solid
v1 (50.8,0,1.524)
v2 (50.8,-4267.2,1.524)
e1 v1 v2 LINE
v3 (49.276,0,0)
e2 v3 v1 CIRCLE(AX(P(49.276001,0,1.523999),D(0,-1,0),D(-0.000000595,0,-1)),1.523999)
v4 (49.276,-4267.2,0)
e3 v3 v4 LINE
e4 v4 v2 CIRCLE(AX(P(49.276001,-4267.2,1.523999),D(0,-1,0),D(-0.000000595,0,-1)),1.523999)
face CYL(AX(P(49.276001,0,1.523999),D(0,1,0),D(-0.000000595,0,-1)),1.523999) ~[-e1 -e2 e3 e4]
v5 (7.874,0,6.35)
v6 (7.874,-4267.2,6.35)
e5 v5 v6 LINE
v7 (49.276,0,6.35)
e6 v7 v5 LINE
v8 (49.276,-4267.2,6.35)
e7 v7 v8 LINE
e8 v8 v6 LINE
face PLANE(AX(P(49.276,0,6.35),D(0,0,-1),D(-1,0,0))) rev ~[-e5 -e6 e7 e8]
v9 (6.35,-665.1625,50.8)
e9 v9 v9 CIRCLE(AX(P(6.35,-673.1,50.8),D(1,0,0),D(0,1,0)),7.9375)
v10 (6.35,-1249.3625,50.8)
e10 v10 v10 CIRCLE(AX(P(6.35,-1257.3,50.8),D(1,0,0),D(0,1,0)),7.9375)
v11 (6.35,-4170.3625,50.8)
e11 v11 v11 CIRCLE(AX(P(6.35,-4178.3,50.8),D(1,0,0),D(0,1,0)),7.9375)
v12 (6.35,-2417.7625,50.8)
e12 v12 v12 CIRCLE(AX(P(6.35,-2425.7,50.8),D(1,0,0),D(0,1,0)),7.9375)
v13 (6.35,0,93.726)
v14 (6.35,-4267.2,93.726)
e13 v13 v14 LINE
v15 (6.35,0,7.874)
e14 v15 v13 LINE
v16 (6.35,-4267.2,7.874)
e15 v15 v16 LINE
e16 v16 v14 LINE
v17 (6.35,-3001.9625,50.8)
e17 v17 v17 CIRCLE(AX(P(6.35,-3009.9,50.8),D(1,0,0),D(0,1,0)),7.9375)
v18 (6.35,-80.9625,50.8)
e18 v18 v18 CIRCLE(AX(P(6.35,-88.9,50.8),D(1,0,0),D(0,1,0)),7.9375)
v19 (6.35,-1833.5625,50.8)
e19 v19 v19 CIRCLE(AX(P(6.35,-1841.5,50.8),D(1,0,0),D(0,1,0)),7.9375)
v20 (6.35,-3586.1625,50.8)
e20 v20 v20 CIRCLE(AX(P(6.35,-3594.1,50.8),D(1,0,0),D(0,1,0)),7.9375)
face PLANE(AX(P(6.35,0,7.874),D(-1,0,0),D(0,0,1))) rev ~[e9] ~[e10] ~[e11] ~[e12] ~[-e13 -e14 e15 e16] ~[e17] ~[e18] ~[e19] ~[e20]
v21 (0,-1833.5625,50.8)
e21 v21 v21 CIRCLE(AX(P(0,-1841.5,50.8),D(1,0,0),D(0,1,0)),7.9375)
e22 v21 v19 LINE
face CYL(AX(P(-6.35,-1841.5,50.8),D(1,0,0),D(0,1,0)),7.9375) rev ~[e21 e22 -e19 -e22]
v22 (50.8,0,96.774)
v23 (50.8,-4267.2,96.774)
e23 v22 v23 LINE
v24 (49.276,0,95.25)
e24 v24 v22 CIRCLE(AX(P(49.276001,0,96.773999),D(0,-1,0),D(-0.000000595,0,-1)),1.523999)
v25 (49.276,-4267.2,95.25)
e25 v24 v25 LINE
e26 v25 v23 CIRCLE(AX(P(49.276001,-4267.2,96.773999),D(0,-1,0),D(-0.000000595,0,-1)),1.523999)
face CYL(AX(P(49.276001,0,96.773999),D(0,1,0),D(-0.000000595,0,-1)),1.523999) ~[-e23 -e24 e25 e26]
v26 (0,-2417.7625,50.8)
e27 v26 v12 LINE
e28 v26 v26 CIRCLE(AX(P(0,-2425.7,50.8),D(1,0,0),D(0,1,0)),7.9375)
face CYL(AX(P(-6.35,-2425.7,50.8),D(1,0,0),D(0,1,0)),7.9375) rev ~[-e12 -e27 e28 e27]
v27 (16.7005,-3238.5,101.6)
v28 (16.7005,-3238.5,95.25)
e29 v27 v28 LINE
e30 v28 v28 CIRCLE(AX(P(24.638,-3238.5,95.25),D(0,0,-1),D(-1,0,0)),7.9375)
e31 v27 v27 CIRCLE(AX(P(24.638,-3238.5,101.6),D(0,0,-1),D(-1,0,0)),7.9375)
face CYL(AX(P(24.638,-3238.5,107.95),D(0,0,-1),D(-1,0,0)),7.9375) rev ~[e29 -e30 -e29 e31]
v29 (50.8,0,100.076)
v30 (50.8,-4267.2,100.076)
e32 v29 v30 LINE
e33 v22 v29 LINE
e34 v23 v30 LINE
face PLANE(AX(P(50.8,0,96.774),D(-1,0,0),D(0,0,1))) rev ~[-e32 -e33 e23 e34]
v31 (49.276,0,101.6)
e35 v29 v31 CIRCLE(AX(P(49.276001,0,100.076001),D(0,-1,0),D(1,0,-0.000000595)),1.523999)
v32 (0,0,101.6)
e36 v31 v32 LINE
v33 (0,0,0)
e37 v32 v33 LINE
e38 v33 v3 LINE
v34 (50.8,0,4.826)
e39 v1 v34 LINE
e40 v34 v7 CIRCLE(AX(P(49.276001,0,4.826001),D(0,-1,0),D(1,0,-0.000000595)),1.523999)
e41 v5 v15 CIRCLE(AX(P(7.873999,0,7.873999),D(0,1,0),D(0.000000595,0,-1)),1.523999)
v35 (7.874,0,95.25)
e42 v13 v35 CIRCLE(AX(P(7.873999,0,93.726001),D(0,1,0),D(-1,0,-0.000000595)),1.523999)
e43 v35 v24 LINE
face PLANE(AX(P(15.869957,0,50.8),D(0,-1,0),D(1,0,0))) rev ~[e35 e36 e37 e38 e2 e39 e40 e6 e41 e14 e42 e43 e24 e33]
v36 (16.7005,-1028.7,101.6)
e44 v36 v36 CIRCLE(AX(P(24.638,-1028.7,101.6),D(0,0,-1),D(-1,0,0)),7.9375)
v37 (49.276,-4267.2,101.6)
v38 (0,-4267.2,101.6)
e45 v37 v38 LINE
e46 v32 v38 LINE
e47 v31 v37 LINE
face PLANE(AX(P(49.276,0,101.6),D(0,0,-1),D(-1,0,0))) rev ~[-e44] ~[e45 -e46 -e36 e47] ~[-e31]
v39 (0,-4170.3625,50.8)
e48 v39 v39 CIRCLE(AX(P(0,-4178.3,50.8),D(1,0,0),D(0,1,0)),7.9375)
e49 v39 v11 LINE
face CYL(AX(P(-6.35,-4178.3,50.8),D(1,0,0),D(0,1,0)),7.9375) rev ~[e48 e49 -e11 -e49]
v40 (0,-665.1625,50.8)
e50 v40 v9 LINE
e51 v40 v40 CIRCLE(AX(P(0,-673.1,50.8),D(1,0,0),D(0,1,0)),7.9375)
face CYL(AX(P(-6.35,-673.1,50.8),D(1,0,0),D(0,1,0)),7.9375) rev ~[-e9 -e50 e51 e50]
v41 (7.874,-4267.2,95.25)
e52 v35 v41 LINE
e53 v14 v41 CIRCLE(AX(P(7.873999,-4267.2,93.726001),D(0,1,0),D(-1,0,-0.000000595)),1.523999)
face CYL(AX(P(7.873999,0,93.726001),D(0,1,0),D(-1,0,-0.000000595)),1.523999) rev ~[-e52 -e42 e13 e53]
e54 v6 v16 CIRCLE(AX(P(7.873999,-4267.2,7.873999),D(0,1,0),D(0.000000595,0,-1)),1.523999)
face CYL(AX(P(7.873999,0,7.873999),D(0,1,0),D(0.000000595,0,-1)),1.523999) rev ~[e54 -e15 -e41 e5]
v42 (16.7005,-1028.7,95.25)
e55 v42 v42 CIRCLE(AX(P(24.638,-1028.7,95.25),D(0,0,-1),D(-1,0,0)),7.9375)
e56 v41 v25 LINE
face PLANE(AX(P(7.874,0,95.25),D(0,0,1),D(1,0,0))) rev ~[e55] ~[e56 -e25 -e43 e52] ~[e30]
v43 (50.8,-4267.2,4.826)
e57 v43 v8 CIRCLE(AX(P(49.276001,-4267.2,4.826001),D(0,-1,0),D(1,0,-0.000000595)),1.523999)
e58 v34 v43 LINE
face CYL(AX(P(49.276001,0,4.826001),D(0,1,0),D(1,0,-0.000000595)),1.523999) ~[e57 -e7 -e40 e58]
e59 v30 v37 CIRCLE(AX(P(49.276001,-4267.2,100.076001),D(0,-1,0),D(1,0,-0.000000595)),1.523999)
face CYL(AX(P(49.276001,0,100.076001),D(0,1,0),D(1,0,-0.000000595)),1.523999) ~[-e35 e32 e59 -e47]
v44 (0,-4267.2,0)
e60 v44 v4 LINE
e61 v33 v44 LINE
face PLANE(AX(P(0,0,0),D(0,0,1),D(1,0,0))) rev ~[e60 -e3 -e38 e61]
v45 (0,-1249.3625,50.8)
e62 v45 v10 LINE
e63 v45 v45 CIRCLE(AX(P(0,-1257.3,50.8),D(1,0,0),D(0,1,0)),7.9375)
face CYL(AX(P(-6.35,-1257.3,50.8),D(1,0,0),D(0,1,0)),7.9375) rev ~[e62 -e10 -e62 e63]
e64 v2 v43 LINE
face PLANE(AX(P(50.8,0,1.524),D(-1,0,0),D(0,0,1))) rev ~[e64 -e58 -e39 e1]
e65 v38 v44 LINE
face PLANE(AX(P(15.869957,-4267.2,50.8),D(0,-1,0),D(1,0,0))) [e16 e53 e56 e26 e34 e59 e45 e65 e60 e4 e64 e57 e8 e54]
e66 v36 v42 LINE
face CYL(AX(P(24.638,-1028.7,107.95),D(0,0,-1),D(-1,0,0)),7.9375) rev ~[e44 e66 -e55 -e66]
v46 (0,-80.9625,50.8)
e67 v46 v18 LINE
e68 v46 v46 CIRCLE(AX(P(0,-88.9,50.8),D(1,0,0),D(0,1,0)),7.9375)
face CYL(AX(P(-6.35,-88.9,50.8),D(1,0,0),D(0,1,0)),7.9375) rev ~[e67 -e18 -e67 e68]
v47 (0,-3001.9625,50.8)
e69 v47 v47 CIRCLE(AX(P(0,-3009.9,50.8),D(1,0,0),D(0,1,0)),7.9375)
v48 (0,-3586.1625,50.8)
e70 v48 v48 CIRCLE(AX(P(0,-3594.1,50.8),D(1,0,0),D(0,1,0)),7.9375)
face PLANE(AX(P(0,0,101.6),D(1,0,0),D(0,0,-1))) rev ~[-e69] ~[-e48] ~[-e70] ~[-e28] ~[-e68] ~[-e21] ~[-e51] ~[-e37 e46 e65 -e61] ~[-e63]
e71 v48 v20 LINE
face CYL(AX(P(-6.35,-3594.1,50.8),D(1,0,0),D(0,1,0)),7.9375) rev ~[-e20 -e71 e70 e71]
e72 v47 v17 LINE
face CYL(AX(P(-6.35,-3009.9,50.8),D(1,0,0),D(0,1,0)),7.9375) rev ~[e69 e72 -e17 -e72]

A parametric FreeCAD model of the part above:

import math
import FreeCAD as App
import Part
import Sketcher

V = App.Vector
Q = App.Units.Quantity

doc = App.newDocument("Part")
body = doc.addObject("PartDesign::Body", "Body")

# Sketch on XZ plane
sketch1 = body.newObject("Sketcher::SketchObject", "Sketch")
sketch1.AttachmentSupport = (doc.getObject("XZ_Plane"), [""])
sketch1.MapMode = "FlatFace"
sketch1.addGeometry(Part.LineSegment(V(0, 101.6, 0), V(0, 0, 0)), False)
sketch1.addGeometry(Part.LineSegment(V(0, 0, 0), V(49.3, 0, 0)), False)
sketch1.addGeometry(Part.ArcOfCircle(Part.Circle(V(49.3, 1.5, 0), V(0, 0, 1), 1.5), math.radians(-90), math.radians(0)), False)
sketch1.addGeometry(Part.LineSegment(V(50.8, 1.5, 0), V(50.8, 4.8, 0)), False)
sketch1.addGeometry(Part.ArcOfCircle(Part.Circle(V(49.3, 4.8, 0), V(0, 0, 1), 1.5), math.radians(0), math.radians(90)), False)
sketch1.addGeometry(Part.LineSegment(V(49.3, 6.3, 0), V(7.9, 6.3, 0)), False)
sketch1.addGeometry(Part.ArcOfCircle(Part.Circle(V(7.9, 7.9, 0), V(0, 0, 1), 1.5), math.radians(180), math.radians(270)), False)
sketch1.addGeometry(Part.LineSegment(V(6.3, 7.9, 0), V(6.3, 93.7, 0)), False)
sketch1.addGeometry(Part.ArcOfCircle(Part.Circle(V(7.9, 93.7, 0), V(0, 0, 1), 1.5), math.radians(90), math.radians(180)), False)
sketch1.addGeometry(Part.LineSegment(V(7.9, 95.2, 0), V(49.3, 95.2, 0)), False)
sketch1.addGeometry(Part.ArcOfCircle(Part.Circle(V(49.3, 96.8, 0), V(0, 0, 1), 1.5), math.radians(-90), math.radians(0)), False)
sketch1.addGeometry(Part.LineSegment(V(50.8, 96.8, 0), V(50.8, 100.1, 0)), False)
sketch1.addGeometry(Part.ArcOfCircle(Part.Circle(V(49.3, 100.1, 0), V(0, 0, 1), 1.5), math.radians(0), math.radians(90)), False)
sketch1.addGeometry(Part.LineSegment(V(49.3, 101.6, 0), V(0, 101.6, 0)), False)
sketch1.addConstraint(Sketcher.Constraint("Coincident", 0, 2, 1, 1))
sketch1.addConstraint(Sketcher.Constraint("Tangent", 1, 2, 2, 1))
sketch1.addConstraint(Sketcher.Constraint("Tangent", 2, 2, 3, 1))
sketch1.addConstraint(Sketcher.Constraint("Tangent", 3, 2, 4, 1))
sketch1.addConstraint(Sketcher.Constraint("Tangent", 4, 2, 5, 1))
sketch1.addConstraint(Sketcher.Constraint("Tangent", 5, 2, 6, 2))
sketch1.addConstraint(Sketcher.Constraint("Tangent", 6, 1, 7, 1))
sketch1.addConstraint(Sketcher.Constraint("Tangent", 7, 2, 8, 2))
sketch1.addConstraint(Sketcher.Constraint("Tangent", 8, 1, 9, 1))
sketch1.addConstraint(Sketcher.Constraint("Tangent", 9, 2, 10, 1))
sketch1.addConstraint(Sketcher.Constraint("Tangent", 10, 2, 11, 1))
sketch1.addConstraint(Sketcher.Constraint("Tangent", 11, 2, 12, 1))
sketch1.addConstraint(Sketcher.Constraint("Tangent", 12, 2, 13, 1))
sketch1.addConstraint(Sketcher.Constraint("Coincident", 13, 2, 0, 1))
sketch1.addConstraint(Sketcher.Constraint("Vertical", 0))
sketch1.addConstraint(Sketcher.Constraint("Horizontal", 1))
sketch1.addConstraint(Sketcher.Constraint("Vertical", 3))
sketch1.addConstraint(Sketcher.Constraint("Horizontal", 5))
sketch1.addConstraint(Sketcher.Constraint("Vertical", 7))
sketch1.addConstraint(Sketcher.Constraint("Horizontal", 9))
sketch1.addConstraint(Sketcher.Constraint("Vertical", 11))
sketch1.addConstraint(Sketcher.Constraint("Horizontal", 13))
sketch1.addConstraint(Sketcher.Constraint("Coincident", 0, 2, -1, 1))
sketch1.addConstraint(Sketcher.Constraint("Equal", 2, 4))
sketch1.addConstraint(Sketcher.Constraint("Equal", 4, 6))
sketch1.addConstraint(Sketcher.Constraint("Equal", 6, 8))
sketch1.addConstraint(Sketcher.Constraint("Equal", 8, 10))
sketch1.addConstraint(Sketcher.Constraint("Equal", 10, 12))
sketch1.addConstraint(Sketcher.Constraint("Vertical", 4, 3, 10, 3))
sketch1.addConstraint(Sketcher.Constraint("Equal", 3, 11))
sketch1.addConstraint(Sketcher.Constraint("DistanceY", 0, 2, 0, 1, Q("4 in")))
sketch1.addConstraint(Sketcher.Constraint("Radius", 2, Q("0.06 in")))
sketch1.addConstraint(Sketcher.Constraint("DistanceX", -1, 1, 2, 2, Q("2 in")))
sketch1.addConstraint(Sketcher.Constraint("DistanceX", 5, 2, 5, 1, Q("1.63 in")))
sketch1.addConstraint(Sketcher.Constraint("DistanceY", 3, 1, 3, 2, Q("0.13 in")))
pad1 = body.newObject("PartDesign::Pad", "Pad")
pad1.Profile = sketch1
pad1.Length = Q("168 in")

# Sketch on XY plane
sketch2 = body.newObject("Sketcher::SketchObject", "Sketch001")
sketch2.AttachmentSupport = (doc.getObject("XY_Plane"), [""])
sketch2.MapMode = "FlatFace"
sketch2.AttachmentOffset = App.Placement(V(0, 0, 4 * 25.4), App.Rotation())
sketch2.addGeometry(Part.Circle(V(25, -3238, 0), V(0, 0, 1), 8), False)
sketch2.addGeometry(Part.Circle(V(25, -1029, 0), V(0, 0, 1), 8), False)
sketch2.addConstraint(Sketcher.Constraint("Equal", 0, 1))
sketch2.addConstraint(Sketcher.Constraint("Vertical", 0, 3, 1, 3))
sketch2.addConstraint(Sketcher.Constraint("Diameter", 0, Q("0.625 in")))
sketch2.addConstraint(Sketcher.Constraint("DistanceY", 0, 3, 1, 3, Q("87 in")))
sketch2.addConstraint(Sketcher.Constraint("DistanceY", 0, 3, -1, 1, Q("127.5 in")))
sketch2.addConstraint(Sketcher.Constraint("DistanceX", -1, 1, 0, 3, Q("0.97 in")))
doc.recompute()
hole = body.newObject("PartDesign::Hole", "Hole")
hole.Profile = sketch2
hole.ThreadType = "None"
hole.Diameter = Q("0.625 in")
hole.DepthType = "Dimension"
hole.Depth = Q("0.25 in")
hole.DrillPoint = "Flat"

# Sketch on YZ plane
sketch3 = body.newObject("Sketcher::SketchObject", "Sketch002")
sketch3.AttachmentSupport = (doc.getObject("YZ_Plane"), [""])
sketch3.MapMode = "FlatFace"
sketch3.addGeometry(Part.Circle(V(-89, 51, 0), V(0, 0, 1), 8), False)
sketch3.addGeometry(Part.Circle(V(-673, 51, 0), V(0, 0, 1), 8), False)
sketch3.addGeometry(Part.Circle(V(-1257, 51, 0), V(0, 0, 1), 8), False)
sketch3.addGeometry(Part.Circle(V(-1842, 51, 0), V(0, 0, 1), 8), False)
sketch3.addGeometry(Part.Circle(V(-2426, 51, 0), V(0, 0, 1), 8), False)
sketch3.addGeometry(Part.Circle(V(-3010, 51, 0), V(0, 0, 1), 8), False)
sketch3.addGeometry(Part.Circle(V(-3594, 51, 0), V(0, 0, 1), 8), False)
sketch3.addGeometry(Part.Circle(V(-4178, 51, 0), V(0, 0, 1), 8), False)
sketch3.addConstraint(Sketcher.Constraint("Equal", 0, 1))
sketch3.addConstraint(Sketcher.Constraint("Equal", 1, 2))
sketch3.addConstraint(Sketcher.Constraint("Equal", 2, 3))
sketch3.addConstraint(Sketcher.Constraint("Equal", 3, 4))
sketch3.addConstraint(Sketcher.Constraint("Equal", 4, 5))
sketch3.addConstraint(Sketcher.Constraint("Equal", 5, 6))
sketch3.addConstraint(Sketcher.Constraint("Equal", 6, 7))
sketch3.addConstraint(Sketcher.Constraint("Horizontal", 0, 3, 1, 3))
sketch3.addConstraint(Sketcher.Constraint("Horizontal", 1, 3, 2, 3))
sketch3.addConstraint(Sketcher.Constraint("Horizontal", 2, 3, 3, 3))
sketch3.addConstraint(Sketcher.Constraint("Horizontal", 3, 3, 4, 3))
sketch3.addConstraint(Sketcher.Constraint("Horizontal", 4, 3, 5, 3))
sketch3.addConstraint(Sketcher.Constraint("Horizontal", 5, 3, 6, 3))
sketch3.addConstraint(Sketcher.Constraint("Horizontal", 6, 3, 7, 3))
sketch3.addConstraint(Sketcher.Constraint("Diameter", 0, Q("0.625 in")))
sketch3.addConstraint(Sketcher.Constraint("DistanceY", -1, 1, 0, 3, Q("2 in")))
sketch3.addConstraint(Sketcher.Constraint("DistanceX", 1, 3, 0, 3, Q("23 in")))
sketch3.addConstraint(Sketcher.Constraint("DistanceX", 2, 3, 1, 3, Q("23 in")))
sketch3.addConstraint(Sketcher.Constraint("DistanceX", 3, 3, 2, 3, Q("23 in")))
sketch3.addConstraint(Sketcher.Constraint("DistanceX", 4, 3, 3, 3, Q("23 in")))
sketch3.addConstraint(Sketcher.Constraint("DistanceX", 5, 3, 4, 3, Q("23 in")))
sketch3.addConstraint(Sketcher.Constraint("DistanceX", 6, 3, 5, 3, Q("23 in")))
sketch3.addConstraint(Sketcher.Constraint("DistanceX", 7, 3, 6, 3, Q("23 in")))
sketch3.addConstraint(Sketcher.Constraint("DistanceX", 0, 3, -1, 1, Q("3.5 in")))
doc.recompute()
hole2 = body.newObject("PartDesign::Hole", "Hole001")
hole2.Profile = sketch3
hole2.ThreadType = "None"
hole2.Diameter = Q("0.625 in")
hole2.DepthType = "Dimension"
hole2.Depth = Q("0.25 in")
hole2.DrillPoint = "Flat"
hole2.Reversed = True

doc.recompute()
